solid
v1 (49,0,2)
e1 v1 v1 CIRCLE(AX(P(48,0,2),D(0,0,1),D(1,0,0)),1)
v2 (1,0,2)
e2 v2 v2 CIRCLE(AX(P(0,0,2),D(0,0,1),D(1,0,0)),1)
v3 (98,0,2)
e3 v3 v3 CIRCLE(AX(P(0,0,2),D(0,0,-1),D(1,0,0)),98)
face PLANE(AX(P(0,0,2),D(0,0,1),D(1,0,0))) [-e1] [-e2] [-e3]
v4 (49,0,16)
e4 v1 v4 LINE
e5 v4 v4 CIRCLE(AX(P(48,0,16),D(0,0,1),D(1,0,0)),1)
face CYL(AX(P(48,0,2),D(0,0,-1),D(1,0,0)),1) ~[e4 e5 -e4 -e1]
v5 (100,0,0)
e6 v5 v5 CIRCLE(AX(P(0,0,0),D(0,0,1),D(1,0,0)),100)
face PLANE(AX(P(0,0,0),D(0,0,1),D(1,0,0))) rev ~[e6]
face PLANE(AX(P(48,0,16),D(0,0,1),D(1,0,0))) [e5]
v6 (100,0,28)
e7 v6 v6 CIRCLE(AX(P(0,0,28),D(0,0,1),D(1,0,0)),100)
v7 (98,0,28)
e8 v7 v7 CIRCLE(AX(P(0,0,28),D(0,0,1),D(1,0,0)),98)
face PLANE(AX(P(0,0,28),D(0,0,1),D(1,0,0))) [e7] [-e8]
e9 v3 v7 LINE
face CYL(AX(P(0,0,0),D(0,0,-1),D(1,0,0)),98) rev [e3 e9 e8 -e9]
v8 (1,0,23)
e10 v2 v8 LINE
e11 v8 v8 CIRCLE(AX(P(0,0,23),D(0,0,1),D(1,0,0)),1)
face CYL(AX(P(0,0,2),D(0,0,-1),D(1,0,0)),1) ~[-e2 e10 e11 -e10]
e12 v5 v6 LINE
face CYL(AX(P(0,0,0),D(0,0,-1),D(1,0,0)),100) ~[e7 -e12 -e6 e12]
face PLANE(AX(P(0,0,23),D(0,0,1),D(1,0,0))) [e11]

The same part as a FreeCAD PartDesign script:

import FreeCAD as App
import Part
import Sketcher
from FreeCAD import Vector
Q = App.Units.Quantity


def faces_at(feature, points):
    """Names of the faces that lie closest to the given points."""
    faces = feature.Shape.Faces
    near = lambda p: min(range(len(faces)), key=lambda i: faces[i].distToShape(Part.Vertex(*p))[0])
    return sorted({f"Face{near(p) + 1}" for p in points})

doc = App.newDocument("Part")
body = doc.addObject("PartDesign::Body", "Body")

# Sketch on XY plane
sketch1 = body.newObject("Sketcher::SketchObject", "Sketch")
sketch1.AttachmentSupport = (doc.getObject("XY_Plane"), [""])
sketch1.MapMode = "FlatFace"
sketch1.addGeometry(Part.Circle(Vector(0, 0, 0), Vector(0, 0, 1), 100), False)
sketch1.addConstraint(Sketcher.Constraint("Coincident", 0, 3, -1, 1))
sketch1.addConstraint(Sketcher.Constraint("Diameter", 0, Q("200 mm")))
pad1 = body.newObject("PartDesign::Pad", "Pad")
pad1.Profile = sketch1
pad1.Length = 28
doc.recompute()

thickness = body.newObject("PartDesign::Thickness", "Thickness")
thickness.Base = (pad1, faces_at(pad1, [(0, 0, 28)]))
thickness.Value = 2
thickness.Reversed = True
thickness.Join = "Arc"

# Sketch on XY plane
sketch2 = body.newObject("Sketcher::SketchObject", "Sketch001")
sketch2.AttachmentSupport = (doc.getObject("XY_Plane"), [""])
sketch2.MapMode = "FlatFace"
sketch2.AttachmentOffset = App.Placement(Vector(0, 0, 2), App.Rotation())
sketch2.addGeometry(Part.Circle(Vector(0, 0, 0), Vector(0, 0, 1), 1), False)
sketch2.addConstraint(Sketcher.Constraint("Coincident", 0, 3, -1, 1))
sketch2.addConstraint(Sketcher.Constraint("Diameter", 0, Q("2 mm")))
pad2 = body.newObject("PartDesign::Pad", "Pad001")
pad2.Profile = sketch2
pad2.Length = 21

# Sketch on XY plane
sketch3 = body.newObject("Sketcher::SketchObject", "Sketch002")
sketch3.AttachmentSupport = (doc.getObject("XY_Plane"), [""])
sketch3.MapMode = "FlatFace"
sketch3.AttachmentOffset = App.Placement(Vector(0, 0, 2), App.Rotation())
sketch3.addGeometry(Part.Circle(Vector(48, 0, 0), Vector(0, 0, 1), 1), False)
sketch3.addConstraint(Sketcher.Constraint("PointOnObject", 0, 3, -1))
sketch3.addConstraint(Sketcher.Constraint("Diameter", 0, Q("2 mm")))
sketch3.addConstraint(Sketcher.Constraint("DistanceX", -1, 1, 0, 3, Q("48 mm")))
pad3 = body.newObject("PartDesign::Pad", "Pad002")
pad3.Profile = sketch3
pad3.Length = 14

doc.recompute()
